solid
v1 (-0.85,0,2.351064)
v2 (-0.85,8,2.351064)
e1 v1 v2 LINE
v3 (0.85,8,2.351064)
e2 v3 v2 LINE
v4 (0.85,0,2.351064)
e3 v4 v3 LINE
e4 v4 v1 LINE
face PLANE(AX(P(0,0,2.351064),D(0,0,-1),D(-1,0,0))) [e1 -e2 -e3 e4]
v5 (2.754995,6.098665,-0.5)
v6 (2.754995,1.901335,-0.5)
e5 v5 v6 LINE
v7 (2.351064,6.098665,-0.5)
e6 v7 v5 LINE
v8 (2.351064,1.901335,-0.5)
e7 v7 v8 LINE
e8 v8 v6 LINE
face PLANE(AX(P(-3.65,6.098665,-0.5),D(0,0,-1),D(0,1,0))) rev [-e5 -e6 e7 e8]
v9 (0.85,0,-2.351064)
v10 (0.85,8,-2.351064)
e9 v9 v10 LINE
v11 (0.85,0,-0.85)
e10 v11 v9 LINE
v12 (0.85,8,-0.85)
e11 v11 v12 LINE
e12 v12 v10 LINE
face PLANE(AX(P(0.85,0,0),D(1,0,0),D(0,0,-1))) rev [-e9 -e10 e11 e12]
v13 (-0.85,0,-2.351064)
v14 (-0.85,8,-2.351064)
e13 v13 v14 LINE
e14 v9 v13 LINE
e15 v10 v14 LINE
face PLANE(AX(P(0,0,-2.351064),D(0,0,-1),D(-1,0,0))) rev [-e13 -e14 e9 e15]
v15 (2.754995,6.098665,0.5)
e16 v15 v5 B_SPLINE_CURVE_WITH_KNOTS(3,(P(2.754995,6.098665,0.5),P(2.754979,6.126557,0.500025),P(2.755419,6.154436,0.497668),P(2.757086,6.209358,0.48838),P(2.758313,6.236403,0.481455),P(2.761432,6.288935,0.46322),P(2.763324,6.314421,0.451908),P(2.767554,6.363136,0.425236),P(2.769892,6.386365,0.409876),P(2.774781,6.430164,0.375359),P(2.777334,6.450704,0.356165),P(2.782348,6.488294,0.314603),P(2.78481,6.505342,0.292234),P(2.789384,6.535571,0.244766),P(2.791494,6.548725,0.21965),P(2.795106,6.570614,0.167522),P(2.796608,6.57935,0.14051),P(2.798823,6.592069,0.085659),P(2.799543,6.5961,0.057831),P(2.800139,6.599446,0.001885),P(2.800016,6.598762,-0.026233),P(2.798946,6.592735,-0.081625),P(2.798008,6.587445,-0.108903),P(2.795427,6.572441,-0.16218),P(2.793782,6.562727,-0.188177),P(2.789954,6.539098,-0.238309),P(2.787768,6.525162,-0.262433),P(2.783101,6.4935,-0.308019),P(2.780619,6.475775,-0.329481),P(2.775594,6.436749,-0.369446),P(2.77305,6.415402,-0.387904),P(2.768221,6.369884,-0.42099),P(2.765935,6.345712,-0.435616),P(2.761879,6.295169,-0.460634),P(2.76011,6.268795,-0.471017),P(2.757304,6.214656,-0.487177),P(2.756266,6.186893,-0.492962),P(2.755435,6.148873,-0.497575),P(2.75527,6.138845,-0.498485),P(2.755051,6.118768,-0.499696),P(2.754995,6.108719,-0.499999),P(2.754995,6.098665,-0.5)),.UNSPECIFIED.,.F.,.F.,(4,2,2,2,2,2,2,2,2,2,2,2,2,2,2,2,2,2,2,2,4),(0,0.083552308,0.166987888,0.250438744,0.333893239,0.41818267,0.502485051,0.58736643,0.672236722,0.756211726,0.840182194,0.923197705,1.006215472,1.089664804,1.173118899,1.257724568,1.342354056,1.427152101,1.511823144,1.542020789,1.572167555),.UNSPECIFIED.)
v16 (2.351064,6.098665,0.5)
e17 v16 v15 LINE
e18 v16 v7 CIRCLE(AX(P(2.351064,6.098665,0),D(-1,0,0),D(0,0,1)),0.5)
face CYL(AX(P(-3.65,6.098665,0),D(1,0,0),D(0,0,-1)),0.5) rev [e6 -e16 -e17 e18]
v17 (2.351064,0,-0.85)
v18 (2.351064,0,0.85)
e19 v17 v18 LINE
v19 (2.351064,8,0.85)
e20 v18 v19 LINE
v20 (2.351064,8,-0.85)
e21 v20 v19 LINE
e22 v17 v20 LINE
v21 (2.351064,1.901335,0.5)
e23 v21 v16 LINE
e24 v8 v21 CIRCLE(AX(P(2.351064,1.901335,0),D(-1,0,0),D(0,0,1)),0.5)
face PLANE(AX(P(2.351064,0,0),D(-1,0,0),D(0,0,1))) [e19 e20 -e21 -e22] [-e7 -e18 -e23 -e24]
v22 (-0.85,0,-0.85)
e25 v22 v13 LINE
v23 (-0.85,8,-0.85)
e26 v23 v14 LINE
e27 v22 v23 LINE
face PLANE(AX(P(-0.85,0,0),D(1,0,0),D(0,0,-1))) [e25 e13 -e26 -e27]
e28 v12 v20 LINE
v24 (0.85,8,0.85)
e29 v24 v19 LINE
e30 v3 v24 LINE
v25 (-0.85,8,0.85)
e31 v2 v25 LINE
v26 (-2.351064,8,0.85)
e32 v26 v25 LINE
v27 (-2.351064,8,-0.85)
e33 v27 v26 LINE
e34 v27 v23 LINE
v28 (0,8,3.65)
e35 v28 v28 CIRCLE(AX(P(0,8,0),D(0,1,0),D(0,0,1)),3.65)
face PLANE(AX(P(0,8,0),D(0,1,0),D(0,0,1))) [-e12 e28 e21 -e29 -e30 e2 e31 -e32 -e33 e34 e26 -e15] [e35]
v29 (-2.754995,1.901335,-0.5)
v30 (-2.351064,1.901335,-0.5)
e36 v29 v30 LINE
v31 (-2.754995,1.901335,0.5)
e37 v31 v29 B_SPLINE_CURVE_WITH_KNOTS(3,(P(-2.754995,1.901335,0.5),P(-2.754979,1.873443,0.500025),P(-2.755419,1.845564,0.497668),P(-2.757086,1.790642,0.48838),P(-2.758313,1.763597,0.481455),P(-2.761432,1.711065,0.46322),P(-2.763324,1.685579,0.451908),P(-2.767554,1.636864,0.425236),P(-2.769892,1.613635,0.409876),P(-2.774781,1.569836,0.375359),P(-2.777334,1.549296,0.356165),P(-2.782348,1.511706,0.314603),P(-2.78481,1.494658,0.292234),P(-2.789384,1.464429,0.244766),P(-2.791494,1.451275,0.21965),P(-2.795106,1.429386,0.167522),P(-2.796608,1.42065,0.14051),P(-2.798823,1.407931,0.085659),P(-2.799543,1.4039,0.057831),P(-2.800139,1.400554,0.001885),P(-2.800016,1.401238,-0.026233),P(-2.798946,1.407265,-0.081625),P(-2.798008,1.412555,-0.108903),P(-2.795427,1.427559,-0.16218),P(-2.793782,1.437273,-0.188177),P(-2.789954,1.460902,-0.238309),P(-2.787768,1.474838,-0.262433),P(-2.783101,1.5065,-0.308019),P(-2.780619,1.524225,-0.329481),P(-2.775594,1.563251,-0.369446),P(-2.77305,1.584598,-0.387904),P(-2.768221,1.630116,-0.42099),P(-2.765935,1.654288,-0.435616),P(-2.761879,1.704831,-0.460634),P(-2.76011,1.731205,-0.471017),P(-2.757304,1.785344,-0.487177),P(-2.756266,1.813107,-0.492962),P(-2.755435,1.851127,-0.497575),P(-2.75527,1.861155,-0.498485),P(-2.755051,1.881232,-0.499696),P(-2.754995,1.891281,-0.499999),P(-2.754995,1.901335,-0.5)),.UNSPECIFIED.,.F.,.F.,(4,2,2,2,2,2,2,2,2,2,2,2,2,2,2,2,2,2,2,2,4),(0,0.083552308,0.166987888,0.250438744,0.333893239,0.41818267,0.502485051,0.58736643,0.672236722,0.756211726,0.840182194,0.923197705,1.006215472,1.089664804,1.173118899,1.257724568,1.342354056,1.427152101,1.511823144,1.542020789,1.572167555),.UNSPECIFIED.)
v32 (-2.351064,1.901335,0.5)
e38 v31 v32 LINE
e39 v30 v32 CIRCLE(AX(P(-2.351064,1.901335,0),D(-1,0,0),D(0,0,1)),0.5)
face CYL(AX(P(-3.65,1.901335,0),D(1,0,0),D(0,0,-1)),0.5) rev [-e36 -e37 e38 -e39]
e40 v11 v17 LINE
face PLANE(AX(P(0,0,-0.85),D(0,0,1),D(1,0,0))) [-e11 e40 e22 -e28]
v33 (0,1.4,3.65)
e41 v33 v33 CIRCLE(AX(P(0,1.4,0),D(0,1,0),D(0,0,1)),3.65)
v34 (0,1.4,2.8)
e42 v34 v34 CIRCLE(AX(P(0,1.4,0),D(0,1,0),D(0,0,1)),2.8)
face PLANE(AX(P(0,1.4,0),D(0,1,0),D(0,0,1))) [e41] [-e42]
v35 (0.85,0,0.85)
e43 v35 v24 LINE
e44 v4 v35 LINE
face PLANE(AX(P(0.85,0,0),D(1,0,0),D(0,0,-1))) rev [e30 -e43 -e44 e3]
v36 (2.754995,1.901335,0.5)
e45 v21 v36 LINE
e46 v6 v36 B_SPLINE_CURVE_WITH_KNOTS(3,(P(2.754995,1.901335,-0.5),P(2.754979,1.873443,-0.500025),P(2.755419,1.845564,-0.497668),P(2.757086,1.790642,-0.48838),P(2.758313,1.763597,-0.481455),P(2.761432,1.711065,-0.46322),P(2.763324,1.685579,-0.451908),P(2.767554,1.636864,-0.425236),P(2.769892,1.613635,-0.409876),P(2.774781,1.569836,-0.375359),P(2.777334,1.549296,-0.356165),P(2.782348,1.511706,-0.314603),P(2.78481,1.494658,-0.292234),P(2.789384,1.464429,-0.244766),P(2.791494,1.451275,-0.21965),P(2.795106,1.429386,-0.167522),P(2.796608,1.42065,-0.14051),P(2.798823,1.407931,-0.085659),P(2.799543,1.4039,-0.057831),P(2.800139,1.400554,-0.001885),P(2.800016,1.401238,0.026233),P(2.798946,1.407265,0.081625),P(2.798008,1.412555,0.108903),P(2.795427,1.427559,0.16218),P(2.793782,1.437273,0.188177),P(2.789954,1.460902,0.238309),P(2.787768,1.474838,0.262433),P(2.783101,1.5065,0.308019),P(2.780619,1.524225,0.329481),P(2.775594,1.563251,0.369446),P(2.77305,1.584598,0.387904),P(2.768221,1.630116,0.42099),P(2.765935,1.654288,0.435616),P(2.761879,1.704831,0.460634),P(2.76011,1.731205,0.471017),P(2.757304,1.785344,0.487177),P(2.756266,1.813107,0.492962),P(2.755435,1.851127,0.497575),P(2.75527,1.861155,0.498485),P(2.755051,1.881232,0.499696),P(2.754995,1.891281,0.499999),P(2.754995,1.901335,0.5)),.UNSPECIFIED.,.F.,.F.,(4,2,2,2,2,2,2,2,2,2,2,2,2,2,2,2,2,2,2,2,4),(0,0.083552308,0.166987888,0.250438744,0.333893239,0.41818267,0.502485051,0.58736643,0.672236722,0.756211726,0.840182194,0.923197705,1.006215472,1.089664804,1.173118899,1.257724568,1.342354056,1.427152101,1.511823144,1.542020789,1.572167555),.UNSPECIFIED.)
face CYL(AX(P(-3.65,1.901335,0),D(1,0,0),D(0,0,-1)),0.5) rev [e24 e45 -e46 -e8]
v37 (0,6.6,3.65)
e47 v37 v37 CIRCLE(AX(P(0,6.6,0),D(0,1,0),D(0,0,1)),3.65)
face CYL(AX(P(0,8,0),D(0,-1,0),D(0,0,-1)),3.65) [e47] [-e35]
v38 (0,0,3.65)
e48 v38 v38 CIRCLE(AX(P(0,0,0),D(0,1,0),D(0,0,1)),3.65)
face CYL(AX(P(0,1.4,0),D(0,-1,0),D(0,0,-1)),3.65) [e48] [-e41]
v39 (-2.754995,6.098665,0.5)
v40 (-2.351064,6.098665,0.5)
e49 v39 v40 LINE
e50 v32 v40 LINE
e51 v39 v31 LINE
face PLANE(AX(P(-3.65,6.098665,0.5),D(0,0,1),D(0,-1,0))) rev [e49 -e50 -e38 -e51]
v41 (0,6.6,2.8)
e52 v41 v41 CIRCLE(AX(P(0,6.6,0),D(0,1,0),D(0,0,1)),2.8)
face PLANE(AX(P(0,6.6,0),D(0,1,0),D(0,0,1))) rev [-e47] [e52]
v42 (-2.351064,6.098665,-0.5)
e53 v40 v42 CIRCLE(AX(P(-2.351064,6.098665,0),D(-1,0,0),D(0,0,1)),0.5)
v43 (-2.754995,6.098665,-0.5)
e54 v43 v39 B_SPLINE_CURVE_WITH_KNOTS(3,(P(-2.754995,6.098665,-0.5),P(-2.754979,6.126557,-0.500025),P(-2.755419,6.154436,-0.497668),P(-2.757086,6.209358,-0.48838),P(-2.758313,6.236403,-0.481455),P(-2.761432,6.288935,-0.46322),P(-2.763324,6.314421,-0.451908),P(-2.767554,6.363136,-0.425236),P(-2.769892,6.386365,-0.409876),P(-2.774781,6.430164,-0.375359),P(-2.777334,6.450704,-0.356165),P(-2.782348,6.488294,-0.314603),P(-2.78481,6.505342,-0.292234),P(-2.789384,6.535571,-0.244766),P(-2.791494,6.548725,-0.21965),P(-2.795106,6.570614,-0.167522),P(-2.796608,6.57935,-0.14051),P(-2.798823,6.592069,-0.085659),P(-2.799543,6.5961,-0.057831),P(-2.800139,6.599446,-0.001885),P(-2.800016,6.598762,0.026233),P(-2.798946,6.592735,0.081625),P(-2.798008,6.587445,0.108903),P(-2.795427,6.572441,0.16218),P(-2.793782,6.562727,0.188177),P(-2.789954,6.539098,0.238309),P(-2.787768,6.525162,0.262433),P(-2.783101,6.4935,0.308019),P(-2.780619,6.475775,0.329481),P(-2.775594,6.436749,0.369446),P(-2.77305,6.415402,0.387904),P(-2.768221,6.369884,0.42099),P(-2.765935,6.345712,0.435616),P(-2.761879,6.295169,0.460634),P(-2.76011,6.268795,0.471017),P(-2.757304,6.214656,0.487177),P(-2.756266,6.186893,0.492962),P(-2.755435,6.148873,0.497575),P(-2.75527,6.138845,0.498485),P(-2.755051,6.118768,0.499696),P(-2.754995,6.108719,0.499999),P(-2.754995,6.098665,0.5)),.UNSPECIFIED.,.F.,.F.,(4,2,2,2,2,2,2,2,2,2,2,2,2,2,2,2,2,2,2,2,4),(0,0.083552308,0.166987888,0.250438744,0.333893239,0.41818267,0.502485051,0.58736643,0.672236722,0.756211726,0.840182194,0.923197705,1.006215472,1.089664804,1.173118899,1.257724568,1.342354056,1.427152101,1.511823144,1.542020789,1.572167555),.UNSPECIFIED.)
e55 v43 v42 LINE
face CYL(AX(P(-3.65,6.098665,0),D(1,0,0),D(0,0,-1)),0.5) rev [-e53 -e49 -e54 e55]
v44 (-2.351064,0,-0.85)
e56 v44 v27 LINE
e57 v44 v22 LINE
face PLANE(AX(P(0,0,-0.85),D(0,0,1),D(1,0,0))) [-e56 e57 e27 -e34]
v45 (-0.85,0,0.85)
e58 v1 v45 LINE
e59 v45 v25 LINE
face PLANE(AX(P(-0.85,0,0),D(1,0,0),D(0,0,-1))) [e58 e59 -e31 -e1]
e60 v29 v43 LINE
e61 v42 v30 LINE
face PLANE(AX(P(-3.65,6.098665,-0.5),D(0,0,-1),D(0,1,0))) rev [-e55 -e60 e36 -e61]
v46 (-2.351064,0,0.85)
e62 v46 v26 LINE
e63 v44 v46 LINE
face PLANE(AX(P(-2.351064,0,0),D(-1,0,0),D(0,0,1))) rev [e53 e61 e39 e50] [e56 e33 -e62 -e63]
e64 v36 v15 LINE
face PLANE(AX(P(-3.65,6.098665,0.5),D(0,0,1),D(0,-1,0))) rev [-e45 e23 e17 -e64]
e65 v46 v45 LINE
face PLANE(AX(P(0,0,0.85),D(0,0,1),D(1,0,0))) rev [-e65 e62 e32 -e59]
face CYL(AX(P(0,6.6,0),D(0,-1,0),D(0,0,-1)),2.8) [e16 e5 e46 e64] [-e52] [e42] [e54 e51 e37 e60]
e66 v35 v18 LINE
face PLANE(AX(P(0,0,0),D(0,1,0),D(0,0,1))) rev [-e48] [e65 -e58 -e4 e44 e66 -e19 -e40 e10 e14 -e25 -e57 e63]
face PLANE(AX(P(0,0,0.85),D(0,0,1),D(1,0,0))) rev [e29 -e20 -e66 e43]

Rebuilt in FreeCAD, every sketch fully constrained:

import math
import FreeCAD as App
import Part
import Sketcher

V = App.Vector


def add_polygon(sketch, points):
    """Adds a closed chain of lines whose ends are joined by coincident constraints."""
    first, n = sketch.GeometryCount, len(points)
    for a, b in zip(points, points[1:] + points[:1]):
        sketch.addGeometry(Part.LineSegment(App.Vector(*a, 0), App.Vector(*b, 0)), False)
    for i in range(n):
        sketch.addConstraint(Sketcher.Constraint("Coincident", first + i, 2, first + (i + 1) % n, 1))

doc = App.newDocument("Part")
body = doc.addObject("PartDesign::Body", "Body")

# Sketch on XZ plane
sketch1 = body.newObject("Sketcher::SketchObject", "Sketch")
sketch1.AttachmentSupport = (doc.getObject("XZ_Plane"), [""])
sketch1.MapMode = "FlatFace"
sketch1.addGeometry(Part.Circle(V(0, 0, 0), V(0, 0, 1), 3.65), False)
sketch1.addConstraint(Sketcher.Constraint("Coincident", 0, 3, -1, 1))
sketch1.addConstraint(Sketcher.Constraint("Diameter", 0, 7.3))
pad1 = body.newObject("PartDesign::Pad", "Pad")
pad1.Profile = sketch1
pad1.Length = 1.4
pad1.Reversed = True

# Sketch on XZ plane
sketch2 = body.newObject("Sketcher::SketchObject", "Sketch001")
sketch2.AttachmentSupport = (doc.getObject("XZ_Plane"), [""])
sketch2.MapMode = "FlatFace"
sketch2.AttachmentOffset = App.Placement(V(0, 0, -1.4), App.Rotation())
sketch2.addGeometry(Part.Circle(V(0, 0, 0), V(0, 0, 1), 2.8), False)
sketch2.addConstraint(Sketcher.Constraint("Coincident", 0, 3, -1, 1))
sketch2.addConstraint(Sketcher.Constraint("Diameter", 0, 5.6))
pad2 = body.newObject("PartDesign::Pad", "Pad001")
pad2.Profile = sketch2
pad2.Length = 5.2
pad2.Reversed = True

# Sketch on XZ plane
sketch3 = body.newObject("Sketcher::SketchObject", "Sketch002")
sketch3.AttachmentSupport = (doc.getObject("XZ_Plane"), [""])
sketch3.MapMode = "FlatFace"
sketch3.AttachmentOffset = App.Placement(V(0, 0, -6.6), App.Rotation())
sketch3.addGeometry(Part.Circle(V(0, 0, 0), V(0, 0, 1), 3.65), False)
sketch3.addConstraint(Sketcher.Constraint("Coincident", 0, 3, -1, 1))
sketch3.addConstraint(Sketcher.Constraint("Diameter", 0, 7.3))
pad3 = body.newObject("PartDesign::Pad", "Pad002")
pad3.Profile = sketch3
pad3.Length = 1.4
pad3.Reversed = True

# Sketch on XZ plane
sketch4 = body.newObject("Sketcher::SketchObject", "Sketch003")
sketch4.AttachmentSupport = (doc.getObject("XZ_Plane"), [""])
sketch4.MapMode = "FlatFace"
sketch4.AttachmentOffset = App.Placement(V(0, 0, -8), App.Rotation())
add_polygon(sketch4, [(0.85, 2.351064), (0.85, 0.85), (2.351064, 0.85), (2.351064, -0.85), (0.85, -0.85), (0.85, -2.351064), (-0.85, -2.351064), (-0.85, -0.85), (-2.351064, -0.85), (-2.351064, 0.85), (-0.85, 0.85), (-0.85, 2.351064)])  # lines 0-11
sketch4.addConstraint(Sketcher.Constraint("Vertical", 0))
sketch4.addConstraint(Sketcher.Constraint("Horizontal", 1))
sketch4.addConstraint(Sketcher.Constraint("Vertical", 2))
sketch4.addConstraint(Sketcher.Constraint("Horizontal", 3))
sketch4.addConstraint(Sketcher.Constraint("Vertical", 4))
sketch4.addConstraint(Sketcher.Constraint("Horizontal", 5))
sketch4.addConstraint(Sketcher.Constraint("Vertical", 6))
sketch4.addConstraint(Sketcher.Constraint("Horizontal", 7))
sketch4.addConstraint(Sketcher.Constraint("Vertical", 8))
sketch4.addConstraint(Sketcher.Constraint("Horizontal", 9))
sketch4.addConstraint(Sketcher.Constraint("Vertical", 10))
sketch4.addConstraint(Sketcher.Constraint("Horizontal", 11))
sketch4.addConstraint(Sketcher.Constraint("Symmetric", 0, 2, 6, 2, -1, 1))
sketch4.addConstraint(Sketcher.Constraint("Symmetric", 2, 2, 8, 2, -1, 1))
sketch4.addConstraint(Sketcher.Constraint("Symmetric", 4, 2, 10, 2, -1, 1))
sketch4.addConstraint(Sketcher.Constraint("Symmetric", 3, 2, 6, 2, -2))
sketch4.addConstraint(Sketcher.Constraint("Equal", 9, 0))
sketch4.addConstraint(Sketcher.Constraint("Equal", 11, 2))
sketch4.addConstraint(Sketcher.Constraint("DistanceX", 5, 2, 5, 1, 1.7))
sketch4.addConstraint(Sketcher.Constraint("DistanceX", 1, 1, 1, 2, 1.501064))
pocket1 = body.newObject("PartDesign::Pocket", "Pocket")
pocket1.Profile = sketch4
pocket1.Type = "ThroughAll"
pocket1.Reversed = True

# Sketch on YZ plane
sketch5 = body.newObject("Sketcher::SketchObject", "Sketch004")
sketch5.AttachmentSupport = (doc.getObject("YZ_Plane"), [""])
sketch5.MapMode = "FlatFace"
sketch5.AttachmentOffset = App.Placement(V(0, 0, 10), App.Rotation())
sketch5.addGeometry(Part.LineSegment(V(1.901335, -0.5, 0), V(6.098665, -0.5, 0)), False)
sketch5.addGeometry(Part.ArcOfCircle(Part.Circle(V(6.098665, 0, 0), V(0, 0, 1), 0.5), math.radians(-90), math.radians(90)), False)
sketch5.addGeometry(Part.LineSegment(V(6.098665, 0.5, 0), V(1.901335, 0.5, 0)), False)
sketch5.addGeometry(Part.ArcOfCircle(Part.Circle(V(1.901335, 0, 0), V(0, 0, 1), 0.5), math.radians(90), math.radians(270)), False)
sketch5.addConstraint(Sketcher.Constraint("Tangent", 0, 2, 1, 1))
sketch5.addConstraint(Sketcher.Constraint("Tangent", 1, 2, 2, 1))
sketch5.addConstraint(Sketcher.Constraint("Tangent", 2, 2, 3, 1))
sketch5.addConstraint(Sketcher.Constraint("Tangent", 3, 2, 0, 1))
sketch5.addConstraint(Sketcher.Constraint("Horizontal", 0))
sketch5.addConstraint(Sketcher.Constraint("Horizontal", 2))
sketch5.addConstraint(Sketcher.Constraint("PointOnObject", 1, 3, -1))
sketch5.addConstraint(Sketcher.Constraint("Radius", 1, 0.5))
sketch5.addConstraint(Sketcher.Constraint("DistanceX", 0, 1, 0, 2, 4.197331))
sketch5.addConstraint(Sketcher.Constraint("DistanceX", -1, 1, 1, 3, 6.098665))
pocket2 = body.newObject("PartDesign::Pocket", "Pocket001")
pocket2.Profile = sketch5
pocket2.Type = "ThroughAll"

doc.recompute()
